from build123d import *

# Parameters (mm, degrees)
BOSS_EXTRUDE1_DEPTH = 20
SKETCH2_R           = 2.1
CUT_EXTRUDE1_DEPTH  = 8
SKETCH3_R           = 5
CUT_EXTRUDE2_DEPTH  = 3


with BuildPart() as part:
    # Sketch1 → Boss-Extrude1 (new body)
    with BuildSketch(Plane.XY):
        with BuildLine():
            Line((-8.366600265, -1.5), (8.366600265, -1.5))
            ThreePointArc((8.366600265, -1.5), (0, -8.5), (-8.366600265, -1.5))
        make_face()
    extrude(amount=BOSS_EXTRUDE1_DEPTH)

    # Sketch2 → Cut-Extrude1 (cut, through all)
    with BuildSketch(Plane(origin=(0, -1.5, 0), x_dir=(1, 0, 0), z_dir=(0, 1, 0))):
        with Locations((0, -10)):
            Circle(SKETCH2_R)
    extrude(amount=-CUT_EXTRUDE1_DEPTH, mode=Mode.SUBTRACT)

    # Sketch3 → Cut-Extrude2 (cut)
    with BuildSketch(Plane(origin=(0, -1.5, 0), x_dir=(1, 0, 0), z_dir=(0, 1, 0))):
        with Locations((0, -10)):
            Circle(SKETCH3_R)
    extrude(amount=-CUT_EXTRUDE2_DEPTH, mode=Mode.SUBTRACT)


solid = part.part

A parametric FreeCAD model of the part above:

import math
import FreeCAD as App
import Part
import Sketcher

V = App.Vector
Q = App.Units.Quantity

doc = App.newDocument("Part")
body = doc.addObject("PartDesign::Body", "Body")

# Sketch on XY plane
sketch1 = body.newObject("Sketcher::SketchObject", "Sketch")
sketch1.AttachmentSupport = (doc.getObject("XY_Plane"), [""])
sketch1.MapMode = "FlatFace"
sketch1.addGeometry([
    Part.LineSegment(V(8, -2, 0), V(-8, -2, 0)),
    Part.ArcOfCircle(Part.Circle(V(0, 0, 0), V(0, 0, 1), 8), math.radians(-170), math.radians(-10)),
], False)
sketch1.addConstraint([
    Sketcher.Constraint("Coincident", 0, 1, 1, 2),
    Sketcher.Constraint("Coincident", 1, 1, 0, 2),
    Sketcher.Constraint("Horizontal", 0),
    Sketcher.Constraint("Coincident", 1, 3, -1, 1),
    Sketcher.Constraint("Radius", 1, Q("8.5 mm")),
    Sketcher.Constraint("DistanceY", 0, 1, -1, 1, Q("1.5 mm")),
])
pad1 = body.newObject("PartDesign::Pad", "Pad")
pad1.Profile = sketch1
pad1.Length = 20

# Sketch on XZ plane
sketch2 = body.newObject("Sketcher::SketchObject", "Sketch001")
sketch2.AttachmentSupport = (doc.getObject("XZ_Plane"), [""])
sketch2.MapMode = "FlatFace"
sketch2.AttachmentOffset = App.Placement(V(0, 0, 1.5), App.Rotation())
sketch2.addGeometry(Part.Circle(V(0, 10, 0), V(0, 0, 1), 2.1), False)
sketch2.addConstraint([
    Sketcher.Constraint("PointOnObject", 0, 3, -2),
    Sketcher.Constraint("Diameter", 0, Q("4.2 mm")),
    Sketcher.Constraint("DistanceY", -1, 1, 0, 3, Q("10 mm")),
])
pocket1 = body.newObject("PartDesign::Pocket", "Pocket")
pocket1.Profile = sketch2
pocket1.Type = "ThroughAll"
pocket1.Reversed = True

# Sketch on XZ plane
sketch3 = body.newObject("Sketcher::SketchObject", "Sketch002")
sketch3.AttachmentSupport = (doc.getObject("XZ_Plane"), [""])
sketch3.MapMode = "FlatFace"
sketch3.AttachmentOffset = App.Placement(V(0, 0, 1.5), App.Rotation())
sketch3.addGeometry(Part.Circle(V(0, 10, 0), V(0, 0, 1), 5), False)
sketch3.addConstraint([
    Sketcher.Constraint("PointOnObject", 0, 3, -2),
    Sketcher.Constraint("Diameter", 0, Q("10 mm")),
    Sketcher.Constraint("DistanceY", -1, 1, 0, 3, Q("10 mm")),
])
pocket2 = body.newObject("PartDesign::Pocket", "Pocket001")
pocket2.Profile = sketch3
pocket2.Length = 3
pocket2.Reversed = True

doc.recompute()
